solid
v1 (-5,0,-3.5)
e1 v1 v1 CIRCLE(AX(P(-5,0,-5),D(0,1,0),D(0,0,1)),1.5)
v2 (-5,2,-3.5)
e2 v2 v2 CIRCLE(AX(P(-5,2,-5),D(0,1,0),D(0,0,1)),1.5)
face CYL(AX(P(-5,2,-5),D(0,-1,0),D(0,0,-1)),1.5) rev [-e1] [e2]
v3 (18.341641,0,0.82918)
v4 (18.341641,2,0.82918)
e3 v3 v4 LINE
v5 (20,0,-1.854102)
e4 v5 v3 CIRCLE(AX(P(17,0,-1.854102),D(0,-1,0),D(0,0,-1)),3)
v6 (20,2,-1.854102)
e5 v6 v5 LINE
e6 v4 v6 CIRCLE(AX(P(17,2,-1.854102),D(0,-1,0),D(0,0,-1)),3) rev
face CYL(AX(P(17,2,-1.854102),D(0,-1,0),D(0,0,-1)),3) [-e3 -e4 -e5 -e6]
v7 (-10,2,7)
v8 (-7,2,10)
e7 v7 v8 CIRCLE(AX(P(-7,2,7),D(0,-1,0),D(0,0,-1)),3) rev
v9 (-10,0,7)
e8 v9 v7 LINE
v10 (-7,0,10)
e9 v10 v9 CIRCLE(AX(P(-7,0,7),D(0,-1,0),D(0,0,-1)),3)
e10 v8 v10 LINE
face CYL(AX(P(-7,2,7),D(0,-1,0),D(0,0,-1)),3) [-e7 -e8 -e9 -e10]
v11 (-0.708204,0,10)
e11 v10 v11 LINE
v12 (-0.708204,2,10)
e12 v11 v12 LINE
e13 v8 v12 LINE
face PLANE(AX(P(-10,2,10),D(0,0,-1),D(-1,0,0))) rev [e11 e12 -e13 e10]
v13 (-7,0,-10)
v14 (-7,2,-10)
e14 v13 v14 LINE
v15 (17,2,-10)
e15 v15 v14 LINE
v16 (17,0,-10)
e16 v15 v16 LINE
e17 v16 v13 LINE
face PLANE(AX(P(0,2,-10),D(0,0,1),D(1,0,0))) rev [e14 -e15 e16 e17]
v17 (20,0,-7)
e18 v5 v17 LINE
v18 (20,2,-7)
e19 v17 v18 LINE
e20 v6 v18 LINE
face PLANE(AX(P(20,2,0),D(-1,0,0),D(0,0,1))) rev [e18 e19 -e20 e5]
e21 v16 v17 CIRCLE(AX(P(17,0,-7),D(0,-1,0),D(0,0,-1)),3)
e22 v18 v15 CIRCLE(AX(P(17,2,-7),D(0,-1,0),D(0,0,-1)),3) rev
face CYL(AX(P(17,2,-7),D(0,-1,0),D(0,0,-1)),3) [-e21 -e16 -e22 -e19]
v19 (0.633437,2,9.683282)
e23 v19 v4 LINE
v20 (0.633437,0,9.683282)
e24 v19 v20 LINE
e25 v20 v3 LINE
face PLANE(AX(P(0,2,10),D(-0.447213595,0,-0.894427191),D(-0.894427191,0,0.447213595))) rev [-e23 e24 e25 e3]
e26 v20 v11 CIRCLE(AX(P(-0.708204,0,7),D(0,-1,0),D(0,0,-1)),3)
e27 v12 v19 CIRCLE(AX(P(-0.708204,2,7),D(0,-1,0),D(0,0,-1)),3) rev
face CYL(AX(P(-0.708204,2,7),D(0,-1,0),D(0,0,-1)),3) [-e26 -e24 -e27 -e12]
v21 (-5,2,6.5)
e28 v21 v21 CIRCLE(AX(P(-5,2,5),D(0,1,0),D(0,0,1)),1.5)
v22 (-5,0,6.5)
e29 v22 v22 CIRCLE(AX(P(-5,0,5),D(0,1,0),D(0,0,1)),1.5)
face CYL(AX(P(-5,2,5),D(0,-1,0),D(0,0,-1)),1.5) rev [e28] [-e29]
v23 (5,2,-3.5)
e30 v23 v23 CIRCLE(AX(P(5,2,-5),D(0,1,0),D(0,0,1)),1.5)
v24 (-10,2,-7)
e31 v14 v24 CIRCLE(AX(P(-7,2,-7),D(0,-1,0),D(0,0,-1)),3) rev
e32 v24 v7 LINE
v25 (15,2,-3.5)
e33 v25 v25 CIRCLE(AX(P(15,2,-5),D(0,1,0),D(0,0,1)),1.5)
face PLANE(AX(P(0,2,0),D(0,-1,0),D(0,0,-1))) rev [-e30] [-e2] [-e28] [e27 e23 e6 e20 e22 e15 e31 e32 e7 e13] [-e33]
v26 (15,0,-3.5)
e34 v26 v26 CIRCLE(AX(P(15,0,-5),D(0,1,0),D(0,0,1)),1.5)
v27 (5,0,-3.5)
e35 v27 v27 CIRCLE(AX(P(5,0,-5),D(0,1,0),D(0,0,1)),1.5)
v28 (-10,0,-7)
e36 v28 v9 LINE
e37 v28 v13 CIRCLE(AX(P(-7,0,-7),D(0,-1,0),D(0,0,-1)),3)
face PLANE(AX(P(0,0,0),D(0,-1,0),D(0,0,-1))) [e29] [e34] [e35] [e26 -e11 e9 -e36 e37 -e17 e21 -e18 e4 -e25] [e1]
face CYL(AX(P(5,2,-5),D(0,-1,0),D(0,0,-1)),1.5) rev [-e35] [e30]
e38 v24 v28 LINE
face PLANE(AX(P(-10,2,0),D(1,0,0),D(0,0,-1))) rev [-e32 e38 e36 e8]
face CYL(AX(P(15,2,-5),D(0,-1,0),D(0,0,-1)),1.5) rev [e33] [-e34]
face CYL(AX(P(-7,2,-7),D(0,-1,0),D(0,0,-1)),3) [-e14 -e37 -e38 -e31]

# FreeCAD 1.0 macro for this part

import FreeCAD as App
import Part
import Sketcher


def edges_at(feature, points):
    """Names of the edges that pass closest to the given points."""
    edges = feature.Shape.Edges
    near = lambda p: min(range(len(edges)), key=lambda i: edges[i].distToShape(Part.Vertex(*p))[0])
    return sorted({f"Edge{near(p) + 1}" for p in points})

doc = App.newDocument("Part")
body = doc.addObject("PartDesign::Body", "Body")

sketch1 = body.newObject("Sketcher::SketchObject", "Sketch")
sketch1.AttachmentSupport = (doc.getObject("XZ_Plane"), [""])
sketch1.MapMode = "FlatFace"
sketch1.addGeometry([
    Part.LineSegment(App.Vector(-10, -10, 0), App.Vector(-10, 10, 0)),
    Part.LineSegment(App.Vector(-10, 10, 0), App.Vector(0, 10, 0)),
    Part.LineSegment(App.Vector(0, 10, 0), App.Vector(20, 0, 0)),
    Part.LineSegment(App.Vector(20, 0, 0), App.Vector(20, -10, 0)),
    Part.LineSegment(App.Vector(20, -10, 0), App.Vector(-10, -10, 0)),
    Part.Circle(App.Vector(-5, 5, 0), App.Vector(0, 0, 1), 1.5),
    Part.Circle(App.Vector(-5, -5, 0), App.Vector(0, 0, 1), 1.5),
    Part.Circle(App.Vector(5, -5, 0), App.Vector(0, 0, 1), 1.5),
    Part.Circle(App.Vector(15, -5, 0), App.Vector(0, 0, 1), 1.5),
], False)
sketch1.addConstraint([
    Sketcher.Constraint("Coincident", 0, 2, 1, 1),
    Sketcher.Constraint("Coincident", 1, 2, 2, 1),
    Sketcher.Constraint("Coincident", 2, 2, 3, 1),
    Sketcher.Constraint("Coincident", 3, 2, 4, 1),
    Sketcher.Constraint("Coincident", 4, 2, 0, 1),
    Sketcher.Constraint("Vertical", 0),
    Sketcher.Constraint("Horizontal", 1),
    Sketcher.Constraint("Vertical", 3),
    Sketcher.Constraint("Horizontal", 4),
    Sketcher.Constraint("Equal", 5, 6),
    Sketcher.Constraint("Equal", 6, 7),
    Sketcher.Constraint("Equal", 7, 8),
    Sketcher.Constraint("Symmetric", 5, 3, 7, 3, -1, 1),
    Sketcher.Constraint("Symmetric", 6, 3, 7, 3, -2),
    Sketcher.Constraint("PointOnObject", 1, 2, -2),
    Sketcher.Constraint("PointOnObject", 2, 2, -1),
    Sketcher.Constraint("Horizontal", 7, 3, 8, 3),
    Sketcher.Constraint("Equal", 1, 3),
    Sketcher.Constraint("Diameter", 5, 3.0),
    Sketcher.Constraint("DistanceX", 1, 1, 1, 2, 10.0),
    Sketcher.Constraint("DistanceX", 4, 2, 4, 1, 30.0),
    Sketcher.Constraint("DistanceY", 0, 1, 0, 2, 20.0),
    Sketcher.Constraint("DistanceX", 5, 3, -1, 1, 5.0),
    Sketcher.Constraint("DistanceY", -1, 1, 5, 3, 5.0),
    Sketcher.Constraint("DistanceX", -1, 1, 8, 3, 15.0),
])
pad1 = body.newObject("PartDesign::Pad", "Pad")
pad1.Profile = sketch1
pad1.Length = 2
pad1.Reversed = True
doc.recompute()

fillet = body.newObject("PartDesign::Fillet", "Fillet")
fillet.Base = (pad1, edges_at(pad1, [
    (20, 1, 0),
    (0, 1, 10),
    (-10, 1, 10),
    (-10, 1, -10),
    (20, 1, -10),
]))
fillet.Radius = 3

doc.recompute()
